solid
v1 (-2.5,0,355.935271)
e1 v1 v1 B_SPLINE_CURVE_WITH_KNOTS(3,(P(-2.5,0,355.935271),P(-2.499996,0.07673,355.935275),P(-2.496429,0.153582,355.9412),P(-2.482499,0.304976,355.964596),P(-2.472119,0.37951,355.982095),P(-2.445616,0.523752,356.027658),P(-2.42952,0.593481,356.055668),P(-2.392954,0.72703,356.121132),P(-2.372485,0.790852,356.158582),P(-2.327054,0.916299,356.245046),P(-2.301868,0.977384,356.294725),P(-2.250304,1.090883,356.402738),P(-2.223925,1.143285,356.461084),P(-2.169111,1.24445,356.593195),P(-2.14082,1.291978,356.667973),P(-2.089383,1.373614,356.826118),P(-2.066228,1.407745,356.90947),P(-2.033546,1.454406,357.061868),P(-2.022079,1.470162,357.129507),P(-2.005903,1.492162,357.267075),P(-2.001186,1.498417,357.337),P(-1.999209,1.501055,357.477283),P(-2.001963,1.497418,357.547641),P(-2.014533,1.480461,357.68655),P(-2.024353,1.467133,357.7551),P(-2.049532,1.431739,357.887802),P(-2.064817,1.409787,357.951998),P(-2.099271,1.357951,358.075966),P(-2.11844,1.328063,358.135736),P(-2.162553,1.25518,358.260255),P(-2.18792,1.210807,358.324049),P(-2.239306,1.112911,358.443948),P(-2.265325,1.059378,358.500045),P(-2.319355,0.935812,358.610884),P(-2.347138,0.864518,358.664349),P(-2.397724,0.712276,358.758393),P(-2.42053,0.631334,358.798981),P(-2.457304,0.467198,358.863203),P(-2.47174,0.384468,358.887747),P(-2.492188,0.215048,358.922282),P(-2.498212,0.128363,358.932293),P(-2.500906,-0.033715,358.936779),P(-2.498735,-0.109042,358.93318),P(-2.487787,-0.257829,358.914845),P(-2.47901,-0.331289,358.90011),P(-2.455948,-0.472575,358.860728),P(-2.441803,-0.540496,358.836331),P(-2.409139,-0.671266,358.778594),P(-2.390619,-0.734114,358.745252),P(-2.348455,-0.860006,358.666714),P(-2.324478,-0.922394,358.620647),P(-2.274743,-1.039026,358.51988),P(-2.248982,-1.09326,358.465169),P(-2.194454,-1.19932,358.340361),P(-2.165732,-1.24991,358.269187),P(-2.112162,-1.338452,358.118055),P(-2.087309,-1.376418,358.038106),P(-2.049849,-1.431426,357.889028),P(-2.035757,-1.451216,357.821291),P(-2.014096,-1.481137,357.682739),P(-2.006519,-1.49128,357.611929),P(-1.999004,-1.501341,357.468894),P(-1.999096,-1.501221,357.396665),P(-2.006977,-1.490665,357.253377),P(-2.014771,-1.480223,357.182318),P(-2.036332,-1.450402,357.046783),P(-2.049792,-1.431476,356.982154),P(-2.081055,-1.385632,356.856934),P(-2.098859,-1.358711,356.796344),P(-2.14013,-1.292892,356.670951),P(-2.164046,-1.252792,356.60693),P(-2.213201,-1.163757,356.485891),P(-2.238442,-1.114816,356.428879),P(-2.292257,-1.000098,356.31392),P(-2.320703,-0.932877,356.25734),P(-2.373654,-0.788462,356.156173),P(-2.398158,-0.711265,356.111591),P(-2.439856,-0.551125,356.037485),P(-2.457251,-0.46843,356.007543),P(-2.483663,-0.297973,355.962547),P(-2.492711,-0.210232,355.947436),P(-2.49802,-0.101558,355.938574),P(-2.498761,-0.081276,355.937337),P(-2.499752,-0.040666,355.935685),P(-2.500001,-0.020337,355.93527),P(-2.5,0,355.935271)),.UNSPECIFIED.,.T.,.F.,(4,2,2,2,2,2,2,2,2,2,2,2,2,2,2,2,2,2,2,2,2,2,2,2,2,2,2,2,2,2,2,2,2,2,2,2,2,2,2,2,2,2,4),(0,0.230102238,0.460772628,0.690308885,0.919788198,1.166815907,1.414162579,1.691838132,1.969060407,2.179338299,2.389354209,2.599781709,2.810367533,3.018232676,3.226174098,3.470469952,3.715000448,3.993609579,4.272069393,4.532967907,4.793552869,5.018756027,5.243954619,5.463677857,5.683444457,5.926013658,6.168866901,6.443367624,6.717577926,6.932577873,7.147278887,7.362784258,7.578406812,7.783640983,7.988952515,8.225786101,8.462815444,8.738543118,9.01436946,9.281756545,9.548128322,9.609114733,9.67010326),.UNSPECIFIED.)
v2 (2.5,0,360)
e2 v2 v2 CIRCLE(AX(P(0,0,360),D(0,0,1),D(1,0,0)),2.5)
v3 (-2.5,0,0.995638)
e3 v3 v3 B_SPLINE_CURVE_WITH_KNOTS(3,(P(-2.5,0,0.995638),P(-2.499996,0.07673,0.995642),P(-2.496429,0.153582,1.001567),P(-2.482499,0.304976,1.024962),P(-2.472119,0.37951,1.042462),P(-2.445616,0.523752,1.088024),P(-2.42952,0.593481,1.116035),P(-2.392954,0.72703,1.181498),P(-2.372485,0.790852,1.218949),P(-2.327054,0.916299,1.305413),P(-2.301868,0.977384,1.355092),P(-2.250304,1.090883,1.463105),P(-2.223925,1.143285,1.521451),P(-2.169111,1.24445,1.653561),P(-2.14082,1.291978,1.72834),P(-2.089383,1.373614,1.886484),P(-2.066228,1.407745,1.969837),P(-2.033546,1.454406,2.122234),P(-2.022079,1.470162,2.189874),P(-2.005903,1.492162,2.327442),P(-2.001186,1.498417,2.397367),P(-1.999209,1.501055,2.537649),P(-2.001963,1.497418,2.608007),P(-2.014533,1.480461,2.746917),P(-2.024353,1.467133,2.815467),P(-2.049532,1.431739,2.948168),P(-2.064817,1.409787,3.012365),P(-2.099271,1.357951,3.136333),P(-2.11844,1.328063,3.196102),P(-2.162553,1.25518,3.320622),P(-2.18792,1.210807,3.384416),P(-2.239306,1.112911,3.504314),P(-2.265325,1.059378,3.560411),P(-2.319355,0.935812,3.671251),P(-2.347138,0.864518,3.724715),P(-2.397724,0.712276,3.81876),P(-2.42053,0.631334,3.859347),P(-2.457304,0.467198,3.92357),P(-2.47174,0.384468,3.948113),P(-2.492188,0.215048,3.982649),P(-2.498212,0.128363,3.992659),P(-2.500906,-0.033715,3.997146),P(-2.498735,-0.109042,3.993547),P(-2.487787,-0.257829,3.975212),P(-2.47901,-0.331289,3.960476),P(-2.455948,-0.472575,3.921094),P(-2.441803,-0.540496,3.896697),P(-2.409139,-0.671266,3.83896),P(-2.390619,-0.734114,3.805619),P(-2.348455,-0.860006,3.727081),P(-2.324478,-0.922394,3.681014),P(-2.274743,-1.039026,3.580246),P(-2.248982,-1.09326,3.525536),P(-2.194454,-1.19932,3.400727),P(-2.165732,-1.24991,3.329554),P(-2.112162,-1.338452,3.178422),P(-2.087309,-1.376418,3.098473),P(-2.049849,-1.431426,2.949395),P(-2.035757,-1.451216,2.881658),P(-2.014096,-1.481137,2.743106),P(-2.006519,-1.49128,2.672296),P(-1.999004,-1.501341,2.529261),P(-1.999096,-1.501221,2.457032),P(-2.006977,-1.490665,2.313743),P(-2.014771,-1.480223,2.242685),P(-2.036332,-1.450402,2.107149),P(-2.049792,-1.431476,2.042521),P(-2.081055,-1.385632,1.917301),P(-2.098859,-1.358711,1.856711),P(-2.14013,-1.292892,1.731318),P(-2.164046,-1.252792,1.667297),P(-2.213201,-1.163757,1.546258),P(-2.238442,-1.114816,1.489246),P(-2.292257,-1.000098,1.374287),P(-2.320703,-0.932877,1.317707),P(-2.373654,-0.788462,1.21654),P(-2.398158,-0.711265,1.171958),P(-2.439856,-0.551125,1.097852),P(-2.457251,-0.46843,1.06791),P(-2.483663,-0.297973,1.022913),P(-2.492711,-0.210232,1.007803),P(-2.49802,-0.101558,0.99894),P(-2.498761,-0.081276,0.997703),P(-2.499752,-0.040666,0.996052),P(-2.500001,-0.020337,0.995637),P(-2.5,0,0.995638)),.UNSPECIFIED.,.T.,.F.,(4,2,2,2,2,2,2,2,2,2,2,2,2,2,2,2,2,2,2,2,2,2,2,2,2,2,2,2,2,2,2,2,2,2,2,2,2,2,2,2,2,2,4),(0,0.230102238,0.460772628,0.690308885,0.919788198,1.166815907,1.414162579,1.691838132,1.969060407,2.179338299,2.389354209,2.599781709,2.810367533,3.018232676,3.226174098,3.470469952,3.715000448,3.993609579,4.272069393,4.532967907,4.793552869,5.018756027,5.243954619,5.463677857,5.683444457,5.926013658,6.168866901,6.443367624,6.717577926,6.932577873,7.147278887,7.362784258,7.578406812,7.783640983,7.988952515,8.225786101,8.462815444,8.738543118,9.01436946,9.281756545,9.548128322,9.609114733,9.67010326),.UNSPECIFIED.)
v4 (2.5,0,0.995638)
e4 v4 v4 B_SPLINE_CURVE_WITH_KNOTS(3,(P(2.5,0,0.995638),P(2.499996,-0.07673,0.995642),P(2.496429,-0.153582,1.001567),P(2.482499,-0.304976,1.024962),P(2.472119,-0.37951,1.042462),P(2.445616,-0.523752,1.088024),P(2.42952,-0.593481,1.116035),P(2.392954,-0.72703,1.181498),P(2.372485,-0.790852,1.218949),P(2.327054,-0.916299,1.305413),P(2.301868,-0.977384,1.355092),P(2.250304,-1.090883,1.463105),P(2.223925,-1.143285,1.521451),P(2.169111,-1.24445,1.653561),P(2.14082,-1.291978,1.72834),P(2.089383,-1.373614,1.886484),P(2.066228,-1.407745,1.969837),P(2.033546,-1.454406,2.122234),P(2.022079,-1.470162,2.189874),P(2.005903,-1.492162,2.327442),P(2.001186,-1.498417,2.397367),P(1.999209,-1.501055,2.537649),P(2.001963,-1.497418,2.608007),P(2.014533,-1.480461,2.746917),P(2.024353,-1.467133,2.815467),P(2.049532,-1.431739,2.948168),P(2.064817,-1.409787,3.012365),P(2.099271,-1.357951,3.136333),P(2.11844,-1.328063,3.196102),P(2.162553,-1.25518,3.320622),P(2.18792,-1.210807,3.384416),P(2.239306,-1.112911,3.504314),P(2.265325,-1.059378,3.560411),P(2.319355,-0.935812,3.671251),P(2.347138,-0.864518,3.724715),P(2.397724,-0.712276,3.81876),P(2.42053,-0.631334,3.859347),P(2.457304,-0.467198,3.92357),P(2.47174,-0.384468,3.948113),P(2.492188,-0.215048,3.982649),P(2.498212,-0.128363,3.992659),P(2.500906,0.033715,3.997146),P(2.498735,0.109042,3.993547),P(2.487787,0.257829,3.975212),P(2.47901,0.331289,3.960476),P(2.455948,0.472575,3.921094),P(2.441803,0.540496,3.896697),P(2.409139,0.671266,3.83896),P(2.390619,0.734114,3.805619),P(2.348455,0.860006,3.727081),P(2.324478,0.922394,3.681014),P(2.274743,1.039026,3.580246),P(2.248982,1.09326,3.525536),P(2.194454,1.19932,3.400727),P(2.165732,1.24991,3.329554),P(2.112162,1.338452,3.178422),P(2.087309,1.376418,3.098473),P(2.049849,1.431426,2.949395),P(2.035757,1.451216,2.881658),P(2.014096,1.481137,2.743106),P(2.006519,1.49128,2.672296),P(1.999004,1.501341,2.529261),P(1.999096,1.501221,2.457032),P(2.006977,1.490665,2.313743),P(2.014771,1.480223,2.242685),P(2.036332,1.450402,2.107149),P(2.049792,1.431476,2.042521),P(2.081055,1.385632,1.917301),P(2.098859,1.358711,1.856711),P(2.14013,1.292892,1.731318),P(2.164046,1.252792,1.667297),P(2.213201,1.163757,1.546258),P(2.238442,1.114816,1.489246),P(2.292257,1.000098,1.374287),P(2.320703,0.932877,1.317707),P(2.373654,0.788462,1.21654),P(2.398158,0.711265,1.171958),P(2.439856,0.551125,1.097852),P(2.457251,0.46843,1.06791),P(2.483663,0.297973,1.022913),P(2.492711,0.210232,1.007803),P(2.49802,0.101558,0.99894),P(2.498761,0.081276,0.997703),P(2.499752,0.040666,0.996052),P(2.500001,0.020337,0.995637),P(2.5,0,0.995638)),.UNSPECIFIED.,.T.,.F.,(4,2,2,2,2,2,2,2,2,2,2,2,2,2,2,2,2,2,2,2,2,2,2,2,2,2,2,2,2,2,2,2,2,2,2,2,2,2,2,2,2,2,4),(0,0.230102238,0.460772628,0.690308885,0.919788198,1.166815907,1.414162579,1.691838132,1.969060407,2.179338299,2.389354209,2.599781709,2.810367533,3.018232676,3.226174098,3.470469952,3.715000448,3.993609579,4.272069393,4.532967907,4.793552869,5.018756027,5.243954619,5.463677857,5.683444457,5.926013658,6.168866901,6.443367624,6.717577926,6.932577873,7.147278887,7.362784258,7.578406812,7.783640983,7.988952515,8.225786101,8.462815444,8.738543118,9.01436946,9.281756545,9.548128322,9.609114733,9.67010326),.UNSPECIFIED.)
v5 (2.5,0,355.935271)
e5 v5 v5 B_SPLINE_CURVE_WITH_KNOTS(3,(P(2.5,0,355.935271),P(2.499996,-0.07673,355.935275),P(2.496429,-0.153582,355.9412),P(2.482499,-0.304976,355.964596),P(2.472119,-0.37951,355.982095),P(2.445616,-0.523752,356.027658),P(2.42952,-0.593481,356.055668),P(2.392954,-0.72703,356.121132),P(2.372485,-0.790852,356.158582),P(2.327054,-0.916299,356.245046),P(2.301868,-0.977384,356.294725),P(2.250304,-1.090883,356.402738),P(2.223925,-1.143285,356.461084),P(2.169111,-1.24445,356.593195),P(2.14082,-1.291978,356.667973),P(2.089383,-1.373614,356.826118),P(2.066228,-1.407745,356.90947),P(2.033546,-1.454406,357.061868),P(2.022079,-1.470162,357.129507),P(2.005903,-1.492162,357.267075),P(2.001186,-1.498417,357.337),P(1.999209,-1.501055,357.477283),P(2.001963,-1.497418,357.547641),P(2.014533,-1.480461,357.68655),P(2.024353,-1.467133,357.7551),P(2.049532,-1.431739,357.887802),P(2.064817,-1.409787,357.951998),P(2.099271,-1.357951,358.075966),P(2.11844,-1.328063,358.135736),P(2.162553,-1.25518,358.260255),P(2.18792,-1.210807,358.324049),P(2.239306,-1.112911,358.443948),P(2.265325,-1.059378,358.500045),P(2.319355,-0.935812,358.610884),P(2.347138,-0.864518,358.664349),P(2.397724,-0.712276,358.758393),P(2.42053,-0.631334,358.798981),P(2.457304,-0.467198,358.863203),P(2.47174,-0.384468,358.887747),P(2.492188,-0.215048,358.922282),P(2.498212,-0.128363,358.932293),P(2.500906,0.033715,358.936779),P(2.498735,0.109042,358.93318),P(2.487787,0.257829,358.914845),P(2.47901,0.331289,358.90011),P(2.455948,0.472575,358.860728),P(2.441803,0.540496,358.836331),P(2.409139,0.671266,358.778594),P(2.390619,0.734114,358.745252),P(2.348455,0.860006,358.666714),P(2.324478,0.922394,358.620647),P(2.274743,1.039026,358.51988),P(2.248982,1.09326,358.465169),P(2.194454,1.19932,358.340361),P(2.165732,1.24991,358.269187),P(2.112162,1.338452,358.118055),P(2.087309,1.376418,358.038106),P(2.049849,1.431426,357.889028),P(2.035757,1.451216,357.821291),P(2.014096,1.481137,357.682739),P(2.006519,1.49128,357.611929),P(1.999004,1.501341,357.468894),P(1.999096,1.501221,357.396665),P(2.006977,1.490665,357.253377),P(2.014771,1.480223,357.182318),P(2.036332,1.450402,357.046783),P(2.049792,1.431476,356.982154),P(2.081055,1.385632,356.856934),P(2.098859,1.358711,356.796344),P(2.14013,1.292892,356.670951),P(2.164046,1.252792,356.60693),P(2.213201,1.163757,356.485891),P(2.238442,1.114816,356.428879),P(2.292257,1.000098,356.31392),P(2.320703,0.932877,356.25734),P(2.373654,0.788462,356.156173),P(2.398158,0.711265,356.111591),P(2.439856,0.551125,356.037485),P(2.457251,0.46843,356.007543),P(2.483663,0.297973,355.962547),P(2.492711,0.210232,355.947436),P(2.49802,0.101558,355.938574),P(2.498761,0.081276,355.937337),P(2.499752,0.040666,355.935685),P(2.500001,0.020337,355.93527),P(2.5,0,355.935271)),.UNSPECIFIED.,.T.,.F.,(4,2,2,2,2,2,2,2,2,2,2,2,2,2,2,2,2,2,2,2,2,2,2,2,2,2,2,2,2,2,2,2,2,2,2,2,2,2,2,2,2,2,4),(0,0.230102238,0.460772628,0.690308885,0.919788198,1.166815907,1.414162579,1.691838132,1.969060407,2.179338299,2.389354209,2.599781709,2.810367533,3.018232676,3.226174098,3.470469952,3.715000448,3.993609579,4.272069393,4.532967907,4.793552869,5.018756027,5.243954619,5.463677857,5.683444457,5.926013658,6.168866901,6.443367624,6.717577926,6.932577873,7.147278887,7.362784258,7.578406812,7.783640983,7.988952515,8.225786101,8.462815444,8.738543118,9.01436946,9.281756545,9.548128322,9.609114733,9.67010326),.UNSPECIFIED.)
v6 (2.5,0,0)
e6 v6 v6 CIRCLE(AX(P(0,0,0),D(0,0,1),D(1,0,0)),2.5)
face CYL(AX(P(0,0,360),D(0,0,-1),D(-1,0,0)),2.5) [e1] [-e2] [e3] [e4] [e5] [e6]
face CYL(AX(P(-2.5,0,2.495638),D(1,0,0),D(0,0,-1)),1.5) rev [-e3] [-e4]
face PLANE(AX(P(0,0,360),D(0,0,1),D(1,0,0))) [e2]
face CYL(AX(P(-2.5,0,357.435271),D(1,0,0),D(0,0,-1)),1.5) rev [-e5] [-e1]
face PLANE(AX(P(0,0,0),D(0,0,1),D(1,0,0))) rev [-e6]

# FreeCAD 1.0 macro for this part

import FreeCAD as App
import Part
import Sketcher

V = App.Vector

doc = App.newDocument("Part")
body = doc.addObject("PartDesign::Body", "Body")

sketch1 = body.newObject("Sketcher::SketchObject", "Sketch")
sketch1.AttachmentSupport = (doc.getObject("XY_Plane"), [""])
sketch1.MapMode = "FlatFace"
sketch1.addGeometry(Part.Circle(V(0, 0, 0), V(0, 0, 1), 2.5), False)
sketch1.addConstraint(Sketcher.Constraint("Coincident", 0, 3, -1, 1))
sketch1.addConstraint(Sketcher.Constraint("Diameter", 0, 5.0))
pad1 = body.newObject("PartDesign::Pad", "Pad")
pad1.Profile = sketch1
pad1.Length = 360

sketch2 = body.newObject("Sketcher::SketchObject", "Sketch001")
sketch2.AttachmentSupport = (doc.getObject("YZ_Plane"), [""])
sketch2.MapMode = "FlatFace"
sketch2.addGeometry(Part.Circle(V(0, 357.4, 0), V(0, 0, 1), 1.5), False)
sketch2.addGeometry(Part.Circle(V(0, 2.5, 0), V(0, 0, 1), 1.5), False)
sketch2.addConstraint(Sketcher.Constraint("Equal", 0, 1))
sketch2.addConstraint(Sketcher.Constraint("PointOnObject", 0, 3, -2))
sketch2.addConstraint(Sketcher.Constraint("PointOnObject", 1, 3, -2))
sketch2.addConstraint(Sketcher.Constraint("Diameter", 0, 3.0))
sketch2.addConstraint(Sketcher.Constraint("DistanceY", -1, 1, 0, 3, 357.435271))
sketch2.addConstraint(Sketcher.Constraint("DistanceY", -1, 1, 1, 3, 2.495638))
pocket1 = body.newObject("PartDesign::Pocket", "Pocket")
pocket1.Profile = sketch2
pocket1.Type = "ThroughAll"
pocket1.Midplane = True

doc.recompute()
